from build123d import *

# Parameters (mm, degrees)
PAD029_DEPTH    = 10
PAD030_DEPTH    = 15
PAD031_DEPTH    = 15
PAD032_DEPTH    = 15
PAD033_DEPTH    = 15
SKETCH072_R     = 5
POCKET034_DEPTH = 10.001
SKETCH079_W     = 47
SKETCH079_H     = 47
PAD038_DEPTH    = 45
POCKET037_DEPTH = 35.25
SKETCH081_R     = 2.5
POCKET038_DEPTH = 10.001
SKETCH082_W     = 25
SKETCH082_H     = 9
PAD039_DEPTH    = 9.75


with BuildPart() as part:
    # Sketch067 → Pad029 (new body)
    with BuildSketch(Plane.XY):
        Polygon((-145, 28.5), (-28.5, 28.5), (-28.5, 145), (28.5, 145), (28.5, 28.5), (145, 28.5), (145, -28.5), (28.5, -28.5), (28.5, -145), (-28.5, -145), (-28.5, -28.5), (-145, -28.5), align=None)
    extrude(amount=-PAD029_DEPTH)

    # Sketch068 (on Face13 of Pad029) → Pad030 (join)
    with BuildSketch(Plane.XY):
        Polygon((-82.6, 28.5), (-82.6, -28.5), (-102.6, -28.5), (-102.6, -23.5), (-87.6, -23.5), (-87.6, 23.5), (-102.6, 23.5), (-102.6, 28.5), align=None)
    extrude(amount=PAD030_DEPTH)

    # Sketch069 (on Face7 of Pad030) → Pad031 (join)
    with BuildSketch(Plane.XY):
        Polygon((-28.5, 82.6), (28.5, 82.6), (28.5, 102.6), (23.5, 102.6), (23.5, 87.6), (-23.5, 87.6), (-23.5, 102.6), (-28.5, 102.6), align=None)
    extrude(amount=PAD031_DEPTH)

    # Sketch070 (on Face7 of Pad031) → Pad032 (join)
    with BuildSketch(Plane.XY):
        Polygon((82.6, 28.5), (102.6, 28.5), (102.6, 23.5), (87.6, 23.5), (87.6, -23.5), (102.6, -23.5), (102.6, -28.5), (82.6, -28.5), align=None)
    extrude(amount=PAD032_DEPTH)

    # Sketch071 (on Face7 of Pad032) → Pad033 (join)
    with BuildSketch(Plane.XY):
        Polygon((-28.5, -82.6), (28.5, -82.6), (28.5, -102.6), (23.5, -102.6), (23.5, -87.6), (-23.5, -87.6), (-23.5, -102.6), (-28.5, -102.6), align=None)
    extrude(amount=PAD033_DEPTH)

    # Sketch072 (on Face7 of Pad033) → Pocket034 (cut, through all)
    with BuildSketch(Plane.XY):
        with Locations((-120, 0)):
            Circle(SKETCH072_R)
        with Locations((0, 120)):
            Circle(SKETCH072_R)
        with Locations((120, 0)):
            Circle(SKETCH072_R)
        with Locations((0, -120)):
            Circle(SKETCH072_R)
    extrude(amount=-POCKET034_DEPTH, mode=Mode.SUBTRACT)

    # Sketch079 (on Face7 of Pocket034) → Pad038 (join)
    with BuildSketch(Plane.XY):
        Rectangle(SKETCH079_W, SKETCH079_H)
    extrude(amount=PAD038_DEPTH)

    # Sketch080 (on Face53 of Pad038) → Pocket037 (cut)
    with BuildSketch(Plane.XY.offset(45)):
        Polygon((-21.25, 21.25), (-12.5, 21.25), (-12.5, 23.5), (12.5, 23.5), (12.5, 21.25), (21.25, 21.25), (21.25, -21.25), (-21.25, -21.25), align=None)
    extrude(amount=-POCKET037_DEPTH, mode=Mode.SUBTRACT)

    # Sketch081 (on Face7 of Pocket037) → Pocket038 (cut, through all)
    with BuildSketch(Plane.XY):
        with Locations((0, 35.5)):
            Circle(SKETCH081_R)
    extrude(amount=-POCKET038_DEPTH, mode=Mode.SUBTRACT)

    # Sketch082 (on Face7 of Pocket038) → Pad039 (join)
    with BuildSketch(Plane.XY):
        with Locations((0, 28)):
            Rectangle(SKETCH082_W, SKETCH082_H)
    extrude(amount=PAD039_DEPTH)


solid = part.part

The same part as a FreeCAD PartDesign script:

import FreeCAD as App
import Part
import Sketcher
from FreeCAD import Vector


def add_polygon(sketch, points):
    """Adds a closed chain of lines whose ends are joined by coincident constraints."""
    first, n = sketch.GeometryCount, len(points)
    for a, b in zip(points, points[1:] + points[:1]):
        sketch.addGeometry(Part.LineSegment(App.Vector(*a, 0), App.Vector(*b, 0)), False)
    for i in range(n):
        sketch.addConstraint(Sketcher.Constraint("Coincident", first + i, 2, first + (i + 1) % n, 1))

doc = App.newDocument("Part")
body = doc.addObject("PartDesign::Body", "Body")

# Sketch on XY plane
sketch1 = body.newObject("Sketcher::SketchObject", "Sketch")
sketch1.AttachmentSupport = (doc.getObject("XY_Plane"), [""])
sketch1.MapMode = "FlatFace"
add_polygon(sketch1, [(-28, 28), (-145, 28), (-145, -28), (-28, -28), (-28, -145), (28, -145), (28, -28), (145, -28), (145, 28), (28, 28), (28, 145), (-28, 145)])  # lines 0-11
sketch1.addConstraint([
    Sketcher.Constraint("Horizontal", 0),
    Sketcher.Constraint("Vertical", 1),
    Sketcher.Constraint("Horizontal", 2),
    Sketcher.Constraint("Vertical", 3),
    Sketcher.Constraint("Horizontal", 4),
    Sketcher.Constraint("Vertical", 5),
    Sketcher.Constraint("Horizontal", 6),
    Sketcher.Constraint("Vertical", 7),
    Sketcher.Constraint("Horizontal", 8),
    Sketcher.Constraint("Vertical", 9),
    Sketcher.Constraint("Horizontal", 10),
    Sketcher.Constraint("Vertical", 11),
    Sketcher.Constraint("Symmetric", 0, 2, 6, 2, -1, 1),
    Sketcher.Constraint("Symmetric", 2, 2, 8, 2, -1, 1),
    Sketcher.Constraint("Symmetric", 4, 2, 10, 2, -1, 1),
    Sketcher.Constraint("Symmetric", 2, 2, 5, 2, -2),
    Sketcher.Constraint("Equal", 10, 1),
    Sketcher.Constraint("Equal", 8, 3),
    Sketcher.Constraint("DistanceX", 4, 1, 4, 2, 57.0),
    Sketcher.Constraint("DistanceX", 0, 2, 0, 1, 116.5),
])
pad1 = body.newObject("PartDesign::Pad", "Pad")
pad1.Profile = sketch1
pad1.Length = 10
pad1.Reversed = True

# Sketch on XY plane
sketch2 = body.newObject("Sketcher::SketchObject", "Sketch001")
sketch2.AttachmentSupport = (doc.getObject("XY_Plane"), [""])
sketch2.MapMode = "FlatFace"
add_polygon(sketch2, [(-83, -28), (-83, 28), (-103, 28), (-103, 24), (-88, 24), (-88, -24), (-103, -24), (-103, -28)])  # lines 0-7
sketch2.addConstraint([
    Sketcher.Constraint("Vertical", 0),
    Sketcher.Constraint("Horizontal", 1),
    Sketcher.Constraint("Vertical", 2),
    Sketcher.Constraint("Horizontal", 3),
    Sketcher.Constraint("Vertical", 4),
    Sketcher.Constraint("Horizontal", 5),
    Sketcher.Constraint("Vertical", 6),
    Sketcher.Constraint("Horizontal", 7),
    Sketcher.Constraint("Symmetric", 2, 2, 5, 2, -1),
    Sketcher.Constraint("Equal", 2, 6),
    Sketcher.Constraint("DistanceX", 1, 2, 1, 1, 20.0),
    Sketcher.Constraint("DistanceX", 3, 1, 3, 2, 15.0),
    Sketcher.Constraint("DistanceY", 0, 1, 0, 2, 57.0),
    Sketcher.Constraint("DistanceY", 2, 2, 2, 1, 5.0),
    Sketcher.Constraint("DistanceX", 0, 2, -1, 1, 82.6),
])
pad2 = body.newObject("PartDesign::Pad", "Pad001")
pad2.Profile = sketch2
pad2.Length = 15

# Sketch on XY plane
sketch3 = body.newObject("Sketcher::SketchObject", "Sketch002")
sketch3.AttachmentSupport = (doc.getObject("XY_Plane"), [""])
sketch3.MapMode = "FlatFace"
add_polygon(sketch3, [(-28, 83), (28, 83), (28, 103), (24, 103), (24, 88), (-24, 88), (-24, 103), (-28, 103)])  # lines 0-7
sketch3.addConstraint([
    Sketcher.Constraint("Horizontal", 0),
    Sketcher.Constraint("Vertical", 1),
    Sketcher.Constraint("Horizontal", 2),
    Sketcher.Constraint("Vertical", 3),
    Sketcher.Constraint("Horizontal", 4),
    Sketcher.Constraint("Vertical", 5),
    Sketcher.Constraint("Horizontal", 6),
    Sketcher.Constraint("Vertical", 7),
    Sketcher.Constraint("Symmetric", 2, 2, 5, 2, -2),
    Sketcher.Constraint("Equal", 2, 6),
    Sketcher.Constraint("DistanceX", 0, 1, 0, 2, 57.0),
    Sketcher.Constraint("DistanceX", 2, 2, 2, 1, 5.0),
    Sketcher.Constraint("DistanceY", 1, 1, 1, 2, 20.0),
    Sketcher.Constraint("DistanceY", 3, 2, 3, 1, 15.0),
    Sketcher.Constraint("DistanceY", -1, 1, 0, 2, 82.6),
])
pad3 = body.newObject("PartDesign::Pad", "Pad002")
pad3.Profile = sketch3
pad3.Length = 15

# Sketch on XY plane
sketch4 = body.newObject("Sketcher::SketchObject", "Sketch003")
sketch4.AttachmentSupport = (doc.getObject("XY_Plane"), [""])
sketch4.MapMode = "FlatFace"
add_polygon(sketch4, [(103, 28), (83, 28), (83, -28), (103, -28), (103, -24), (88, -24), (88, 24), (103, 24)])  # lines 0-7
sketch4.addConstraint([
    Sketcher.Constraint("Horizontal", 0),
    Sketcher.Constraint("Vertical", 1),
    Sketcher.Constraint("Horizontal", 2),
    Sketcher.Constraint("Vertical", 3),
    Sketcher.Constraint("Horizontal", 4),
    Sketcher.Constraint("Vertical", 5),
    Sketcher.Constraint("Horizontal", 6),
    Sketcher.Constraint("Vertical", 7),
    Sketcher.Constraint("Symmetric", 3, 2, 6, 2, -1),
    Sketcher.Constraint("Equal", 3, 7),
    Sketcher.Constraint("DistanceX", 0, 2, 0, 1, 20.0),
    Sketcher.Constraint("DistanceX", 4, 2, 4, 1, 15.0),
    Sketcher.Constraint("DistanceY", 1, 2, 1, 1, 57.0),
    Sketcher.Constraint("DistanceY", 3, 1, 3, 2, 5.0),
    Sketcher.Constraint("DistanceX", -1, 1, 0, 2, 82.6),
])
pad4 = body.newObject("PartDesign::Pad", "Pad003")
pad4.Profile = sketch4
pad4.Length = 15

# Sketch on XY plane
sketch5 = body.newObject("Sketcher::SketchObject", "Sketch004")
sketch5.AttachmentSupport = (doc.getObject("XY_Plane"), [""])
sketch5.MapMode = "FlatFace"
add_polygon(sketch5, [(28, -83), (-28, -83), (-28, -103), (-24, -103), (-24, -88), (24, -88), (24, -103), (28, -103)])  # lines 0-7
sketch5.addConstraint([
    Sketcher.Constraint("Horizontal", 0),
    Sketcher.Constraint("Vertical", 1),
    Sketcher.Constraint("Horizontal", 2),
    Sketcher.Constraint("Vertical", 3),
    Sketcher.Constraint("Horizontal", 4),
    Sketcher.Constraint("Vertical", 5),
    Sketcher.Constraint("Horizontal", 6),
    Sketcher.Constraint("Vertical", 7),
    Sketcher.Constraint("Symmetric", 2, 2, 5, 2, -2),
    Sketcher.Constraint("Equal", 2, 6),
    Sketcher.Constraint("DistanceX", 0, 2, 0, 1, 57.0),
    Sketcher.Constraint("DistanceX", 2, 1, 2, 2, 5.0),
    Sketcher.Constraint("DistanceY", 1, 2, 1, 1, 20.0),
    Sketcher.Constraint("DistanceY", 3, 1, 3, 2, 15.0),
    Sketcher.Constraint("DistanceY", 0, 2, -1, 1, 82.6),
])
pad5 = body.newObject("PartDesign::Pad", "Pad004")
pad5.Profile = sketch5
pad5.Length = 15

# Sketch on XY plane
sketch6 = body.newObject("Sketcher::SketchObject", "Sketch005")
sketch6.AttachmentSupport = (doc.getObject("XY_Plane"), [""])
sketch6.MapMode = "FlatFace"
sketch6.addGeometry([
    Part.Circle(Vector(-120, 0, 0), Vector(0, 0, 1), 5),
    Part.Circle(Vector(0, 120, 0), Vector(0, 0, 1), 5),
    Part.Circle(Vector(120, 0, 0), Vector(0, 0, 1), 5),
    Part.Circle(Vector(0, -120, 0), Vector(0, 0, 1), 5),
], False)
sketch6.addConstraint([
    Sketcher.Constraint("Equal", 0, 1),
    Sketcher.Constraint("Equal", 1, 2),
    Sketcher.Constraint("Equal", 2, 3),
    Sketcher.Constraint("Symmetric", 0, 3, 2, 3, -1, 1),
    Sketcher.Constraint("Symmetric", 1, 3, 3, 3, -1, 1),
    Sketcher.Constraint("PointOnObject", 0, 3, -1),
    Sketcher.Constraint("PointOnObject", 1, 3, -2),
    Sketcher.Constraint("Diameter", 0, 10.0),
    Sketcher.Constraint("DistanceX", 0, 3, -1, 1, 120.0),
    Sketcher.Constraint("DistanceY", -1, 1, 1, 3, 120.0),
])
pocket1 = body.newObject("PartDesign::Pocket", "Pocket")
pocket1.Profile = sketch6
pocket1.Type = "ThroughAll"

# Sketch on XY plane
sketch7 = body.newObject("Sketcher::SketchObject", "Sketch006")
sketch7.AttachmentSupport = (doc.getObject("XY_Plane"), [""])
sketch7.MapMode = "FlatFace"
add_polygon(sketch7, [(-24, 24), (-24, -24), (24, -24), (24, 24)])  # lines 0-3
sketch7.addConstraint([
    Sketcher.Constraint("Vertical", 0),
    Sketcher.Constraint("Horizontal", 1),
    Sketcher.Constraint("Vertical", 2),
    Sketcher.Constraint("Horizontal", 3),
    Sketcher.Constraint("Symmetric", 0, 2, 2, 2, -1, 1),
    Sketcher.Constraint("Equal", 3, 0),
    Sketcher.Constraint("DistanceX", 1, 1, 1, 2, 47.0),
])
pad6 = body.newObject("PartDesign::Pad", "Pad005")
pad6.Profile = sketch7
pad6.Length = 45

# Sketch on XY plane
sketch8 = body.newObject("Sketcher::SketchObject", "Sketch007")
sketch8.AttachmentSupport = (doc.getObject("XY_Plane"), [""])
sketch8.MapMode = "FlatFace"
sketch8.AttachmentOffset = App.Placement(Vector(0, 0, 45), App.Rotation())
add_polygon(sketch8, [(-12.5, 21.2), (-21.2, 21.2), (-21.2, -21.2), (21.2, -21.2), (21.2, 21.2), (12.5, 21.2), (12.5, 23.5), (-12.5, 23.5)])  # lines 0-7
sketch8.addConstraint([
    Sketcher.Constraint("Horizontal", 0),
    Sketcher.Constraint("Vertical", 1),
    Sketcher.Constraint("Horizontal", 2),
    Sketcher.Constraint("Vertical", 3),
    Sketcher.Constraint("Horizontal", 4),
    Sketcher.Constraint("Vertical", 5),
    Sketcher.Constraint("Horizontal", 6),
    Sketcher.Constraint("Vertical", 7),
    Sketcher.Constraint("Symmetric", 0, 2, 2, 2, -1, 1),
    Sketcher.Constraint("Symmetric", 4, 2, 7, 2, -2),
    Sketcher.Constraint("Equal", 2, 1),
    Sketcher.Constraint("DistanceX", 6, 2, 6, 1, 25.0),
    Sketcher.Constraint("DistanceX", 2, 1, 2, 2, 42.5),
    Sketcher.Constraint("DistanceY", 5, 1, 5, 2, 2.25),
])
pocket2 = body.newObject("PartDesign::Pocket", "Pocket001")
pocket2.Profile = sketch8
pocket2.Length = 35.25

# Sketch on XY plane
sketch9 = body.newObject("Sketcher::SketchObject", "Sketch008")
sketch9.AttachmentSupport = (doc.getObject("XY_Plane"), [""])
sketch9.MapMode = "FlatFace"
sketch9.addGeometry(Part.Circle(Vector(0, 35.5, 0), Vector(0, 0, 1), 2.5), False)
sketch9.addConstraint([
    Sketcher.Constraint("PointOnObject", 0, 3, -2),
    Sketcher.Constraint("Diameter", 0, 5.0),
    Sketcher.Constraint("DistanceY", -1, 1, 0, 3, 35.5),
])
pocket3 = body.newObject("PartDesign::Pocket", "Pocket002")
pocket3.Profile = sketch9
pocket3.Type = "ThroughAll"

# Sketch on XY plane
sketch10 = body.newObject("Sketcher::SketchObject", "Sketch009")
sketch10.AttachmentSupport = (doc.getObject("XY_Plane"), [""])
sketch10.MapMode = "FlatFace"
add_polygon(sketch10, [(-12, 32), (-12, 24), (12, 24), (12, 32)])  # lines 0-3
sketch10.addConstraint([
    Sketcher.Constraint("Vertical", 0),
    Sketcher.Constraint("Horizontal", 1),
    Sketcher.Constraint("Vertical", 2),
    Sketcher.Constraint("Horizontal", 3),
    Sketcher.Constraint("DistanceX", 1, 1, 1, 2, 25.0),
    Sketcher.Constraint("DistanceY", 0, 2, 0, 1, 9.0),
    Sketcher.Constraint("DistanceX", 0, 2, -1, 1, 12.5),
    Sketcher.Constraint("DistanceY", -1, 1, 0, 2, 23.5),
])
pad7 = body.newObject("PartDesign::Pad", "Pad006")
pad7.Profile = sketch10
pad7.Length = 9.75

doc.recompute()
